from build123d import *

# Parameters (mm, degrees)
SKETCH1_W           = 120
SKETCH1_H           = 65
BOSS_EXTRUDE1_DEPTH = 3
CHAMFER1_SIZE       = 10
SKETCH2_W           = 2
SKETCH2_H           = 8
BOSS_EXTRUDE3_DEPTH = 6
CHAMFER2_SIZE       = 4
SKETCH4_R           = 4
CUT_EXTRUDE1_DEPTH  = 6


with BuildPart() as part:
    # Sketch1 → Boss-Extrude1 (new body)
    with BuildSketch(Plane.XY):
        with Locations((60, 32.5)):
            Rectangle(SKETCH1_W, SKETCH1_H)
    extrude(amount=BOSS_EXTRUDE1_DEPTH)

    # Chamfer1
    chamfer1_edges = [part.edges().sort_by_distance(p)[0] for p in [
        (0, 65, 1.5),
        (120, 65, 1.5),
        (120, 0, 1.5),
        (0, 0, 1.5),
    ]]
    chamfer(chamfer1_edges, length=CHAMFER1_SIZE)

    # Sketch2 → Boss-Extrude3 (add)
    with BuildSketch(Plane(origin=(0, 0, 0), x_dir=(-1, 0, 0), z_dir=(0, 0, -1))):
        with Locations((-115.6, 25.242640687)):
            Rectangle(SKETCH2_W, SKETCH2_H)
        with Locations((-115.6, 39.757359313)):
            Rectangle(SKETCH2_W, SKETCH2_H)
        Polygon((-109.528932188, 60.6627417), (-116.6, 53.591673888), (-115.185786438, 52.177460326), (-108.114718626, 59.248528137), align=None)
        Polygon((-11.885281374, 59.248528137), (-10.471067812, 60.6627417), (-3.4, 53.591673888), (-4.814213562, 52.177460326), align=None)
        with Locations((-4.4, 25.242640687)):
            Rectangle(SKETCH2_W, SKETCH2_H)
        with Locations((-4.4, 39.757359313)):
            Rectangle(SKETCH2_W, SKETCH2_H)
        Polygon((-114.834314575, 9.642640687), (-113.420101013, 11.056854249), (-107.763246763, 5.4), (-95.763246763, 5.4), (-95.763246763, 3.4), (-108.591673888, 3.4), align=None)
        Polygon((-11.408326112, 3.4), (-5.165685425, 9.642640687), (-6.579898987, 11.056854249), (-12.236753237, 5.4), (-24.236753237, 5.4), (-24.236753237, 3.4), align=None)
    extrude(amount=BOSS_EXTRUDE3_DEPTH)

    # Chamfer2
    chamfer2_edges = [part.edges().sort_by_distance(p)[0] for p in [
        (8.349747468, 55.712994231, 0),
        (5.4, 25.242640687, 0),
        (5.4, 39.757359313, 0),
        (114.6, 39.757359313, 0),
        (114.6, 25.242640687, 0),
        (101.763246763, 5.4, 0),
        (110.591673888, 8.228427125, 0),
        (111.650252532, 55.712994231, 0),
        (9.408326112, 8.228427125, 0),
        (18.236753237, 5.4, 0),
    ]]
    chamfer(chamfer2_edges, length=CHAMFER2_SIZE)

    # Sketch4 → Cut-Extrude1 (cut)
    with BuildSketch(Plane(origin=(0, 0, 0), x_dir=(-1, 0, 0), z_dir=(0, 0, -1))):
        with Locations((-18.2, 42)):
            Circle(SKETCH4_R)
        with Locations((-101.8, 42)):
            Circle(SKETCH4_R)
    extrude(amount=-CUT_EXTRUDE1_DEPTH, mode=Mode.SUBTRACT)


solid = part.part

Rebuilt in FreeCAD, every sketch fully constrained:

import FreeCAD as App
import Part
import Sketcher

V = App.Vector


def edges_at(feature, points):
    """Names of the edges that pass closest to the given points."""
    edges = feature.Shape.Edges
    near = lambda p: min(range(len(edges)), key=lambda i: edges[i].distToShape(Part.Vertex(*p))[0])
    return sorted({f"Edge{near(p) + 1}" for p in points})

doc = App.newDocument("Part")
body = doc.addObject("PartDesign::Body", "Body")

# Sketch on XY plane
sketch1 = body.newObject("Sketcher::SketchObject", "Sketch")
sketch1.AttachmentSupport = (doc.getObject("XY_Plane"), [""])
sketch1.MapMode = "FlatFace"
sketch1.addGeometry(Part.LineSegment(V(0, 65, 0), V(0, 0, 0)), False)
sketch1.addGeometry(Part.LineSegment(V(0, 0, 0), V(120, 0, 0)), False)
sketch1.addGeometry(Part.LineSegment(V(120, 0, 0), V(120, 65, 0)), False)
sketch1.addGeometry(Part.LineSegment(V(120, 65, 0), V(0, 65, 0)), False)
sketch1.addConstraint(Sketcher.Constraint("Coincident", 0, 2, 1, 1))
sketch1.addConstraint(Sketcher.Constraint("Coincident", 1, 2, 2, 1))
sketch1.addConstraint(Sketcher.Constraint("Coincident", 2, 2, 3, 1))
sketch1.addConstraint(Sketcher.Constraint("Coincident", 3, 2, 0, 1))
sketch1.addConstraint(Sketcher.Constraint("Vertical", 0))
sketch1.addConstraint(Sketcher.Constraint("Horizontal", 1))
sketch1.addConstraint(Sketcher.Constraint("Vertical", 2))
sketch1.addConstraint(Sketcher.Constraint("Horizontal", 3))
sketch1.addConstraint(Sketcher.Constraint("Coincident", 0, 2, -1, 1))
sketch1.addConstraint(Sketcher.Constraint("DistanceX", 1, 1, 1, 2, 120.0))
sketch1.addConstraint(Sketcher.Constraint("DistanceY", 0, 2, 0, 1, 65.0))
pad1 = body.newObject("PartDesign::Pad", "Pad")
pad1.Profile = sketch1
pad1.Length = 3
doc.recompute()

chamfer = body.newObject("PartDesign::Chamfer", "Chamfer")
chamfer.Base = (pad1, edges_at(pad1, [
    (0, 65, 1.5),
    (120, 65, 1.5),
    (120, 0, 1.5),
    (0, 0, 1.5),
]))
chamfer.Size = 10

# Sketch on XY plane
sketch2 = body.newObject("Sketcher::SketchObject", "Sketch001")
sketch2.AttachmentSupport = (doc.getObject("XY_Plane"), [""])
sketch2.MapMode = "FlatFace"
sketch2.addGeometry(Part.LineSegment(V(116.6, 29.242641, 0), V(116.6, 21.242641, 0)), False)
sketch2.addGeometry(Part.LineSegment(V(116.6, 21.242641, 0), V(114.6, 21.242641, 0)), False)
sketch2.addGeometry(Part.LineSegment(V(114.6, 21.242641, 0), V(114.6, 29.242641, 0)), False)
sketch2.addGeometry(Part.LineSegment(V(114.6, 29.242641, 0), V(116.6, 29.242641, 0)), False)
sketch2.addGeometry(Part.LineSegment(V(116.6, 43.757359, 0), V(116.6, 35.757359, 0)), False)
sketch2.addGeometry(Part.LineSegment(V(116.6, 35.757359, 0), V(114.6, 35.757359, 0)), False)
sketch2.addGeometry(Part.LineSegment(V(114.6, 35.757359, 0), V(114.6, 43.757359, 0)), False)
sketch2.addGeometry(Part.LineSegment(V(114.6, 43.757359, 0), V(116.6, 43.757359, 0)), False)
sketch2.addGeometry(Part.LineSegment(V(109.528932, 60.662742, 0), V(116.6, 53.591674, 0)), False)
sketch2.addGeometry(Part.LineSegment(V(116.6, 53.591674, 0), V(115.185786, 52.17746, 0)), False)
sketch2.addGeometry(Part.LineSegment(V(115.185786, 52.17746, 0), V(108.114719, 59.248528, 0)), False)
sketch2.addGeometry(Part.LineSegment(V(108.114719, 59.248528, 0), V(109.528932, 60.662742, 0)), False)
sketch2.addGeometry(Part.LineSegment(V(10.471068, 60.662742, 0), V(11.885281, 59.248528, 0)), False)
sketch2.addGeometry(Part.LineSegment(V(11.885281, 59.248528, 0), V(4.814214, 52.17746, 0)), False)
sketch2.addGeometry(Part.LineSegment(V(4.814214, 52.17746, 0), V(3.4, 53.591674, 0)), False)
sketch2.addGeometry(Part.LineSegment(V(3.4, 53.591674, 0), V(10.471068, 60.662742, 0)), False)
sketch2.addGeometry(Part.LineSegment(V(5.4, 29.242641, 0), V(5.4, 21.242641, 0)), False)
sketch2.addGeometry(Part.LineSegment(V(5.4, 21.242641, 0), V(3.4, 21.242641, 0)), False)
sketch2.addGeometry(Part.LineSegment(V(3.4, 21.242641, 0), V(3.4, 29.242641, 0)), False)
sketch2.addGeometry(Part.LineSegment(V(3.4, 29.242641, 0), V(5.4, 29.242641, 0)), False)
sketch2.addGeometry(Part.LineSegment(V(5.4, 43.757359, 0), V(5.4, 35.757359, 0)), False)
sketch2.addGeometry(Part.LineSegment(V(5.4, 35.757359, 0), V(3.4, 35.757359, 0)), False)
sketch2.addGeometry(Part.LineSegment(V(3.4, 35.757359, 0), V(3.4, 43.757359, 0)), False)
sketch2.addGeometry(Part.LineSegment(V(3.4, 43.757359, 0), V(5.4, 43.757359, 0)), False)
sketch2.addGeometry(Part.LineSegment(V(113.420101, 11.056854, 0), V(114.834315, 9.642641, 0)), False)
sketch2.addGeometry(Part.LineSegment(V(114.834315, 9.642641, 0), V(108.591674, 3.4, 0)), False)
sketch2.addGeometry(Part.LineSegment(V(108.591674, 3.4, 0), V(95.763247, 3.4, 0)), False)
sketch2.addGeometry(Part.LineSegment(V(95.763247, 3.4, 0), V(95.763247, 5.4, 0)), False)
sketch2.addGeometry(Part.LineSegment(V(95.763247, 5.4, 0), V(107.763247, 5.4, 0)), False)
sketch2.addGeometry(Part.LineSegment(V(107.763247, 5.4, 0), V(113.420101, 11.056854, 0)), False)
sketch2.addGeometry(Part.LineSegment(V(11.408326, 3.4, 0), V(5.165685, 9.642641, 0)), False)
sketch2.addGeometry(Part.LineSegment(V(5.165685, 9.642641, 0), V(6.579899, 11.056854, 0)), False)
sketch2.addGeometry(Part.LineSegment(V(6.579899, 11.056854, 0), V(12.236753, 5.4, 0)), False)
sketch2.addGeometry(Part.LineSegment(V(12.236753, 5.4, 0), V(24.236753, 5.4, 0)), False)
sketch2.addGeometry(Part.LineSegment(V(24.236753, 5.4, 0), V(24.236753, 3.4, 0)), False)
sketch2.addGeometry(Part.LineSegment(V(24.236753, 3.4, 0), V(11.408326, 3.4, 0)), False)
sketch2.addConstraint(Sketcher.Constraint("Coincident", 0, 2, 1, 1))
sketch2.addConstraint(Sketcher.Constraint("Coincident", 1, 2, 2, 1))
sketch2.addConstraint(Sketcher.Constraint("Coincident", 2, 2, 3, 1))
sketch2.addConstraint(Sketcher.Constraint("Coincident", 3, 2, 0, 1))
sketch2.addConstraint(Sketcher.Constraint("Coincident", 4, 2, 5, 1))
sketch2.addConstraint(Sketcher.Constraint("Coincident", 5, 2, 6, 1))
sketch2.addConstraint(Sketcher.Constraint("Coincident", 6, 2, 7, 1))
sketch2.addConstraint(Sketcher.Constraint("Coincident", 7, 2, 4, 1))
sketch2.addConstraint(Sketcher.Constraint("Coincident", 8, 2, 9, 1))
sketch2.addConstraint(Sketcher.Constraint("Coincident", 9, 2, 10, 1))
sketch2.addConstraint(Sketcher.Constraint("Coincident", 10, 2, 11, 1))
sketch2.addConstraint(Sketcher.Constraint("Coincident", 11, 2, 8, 1))
sketch2.addConstraint(Sketcher.Constraint("Coincident", 12, 2, 13, 1))
sketch2.addConstraint(Sketcher.Constraint("Coincident", 13, 2, 14, 1))
sketch2.addConstraint(Sketcher.Constraint("Coincident", 14, 2, 15, 1))
sketch2.addConstraint(Sketcher.Constraint("Coincident", 15, 2, 12, 1))
sketch2.addConstraint(Sketcher.Constraint("Coincident", 16, 2, 17, 1))
sketch2.addConstraint(Sketcher.Constraint("Coincident", 17, 2, 18, 1))
sketch2.addConstraint(Sketcher.Constraint("Coincident", 18, 2, 19, 1))
sketch2.addConstraint(Sketcher.Constraint("Coincident", 19, 2, 16, 1))
sketch2.addConstraint(Sketcher.Constraint("Coincident", 20, 2, 21, 1))
sketch2.addConstraint(Sketcher.Constraint("Coincident", 21, 2, 22, 1))
sketch2.addConstraint(Sketcher.Constraint("Coincident", 22, 2, 23, 1))
sketch2.addConstraint(Sketcher.Constraint("Coincident", 23, 2, 20, 1))
sketch2.addConstraint(Sketcher.Constraint("Coincident", 24, 2, 25, 1))
sketch2.addConstraint(Sketcher.Constraint("Coincident", 25, 2, 26, 1))
sketch2.addConstraint(Sketcher.Constraint("Coincident", 26, 2, 27, 1))
sketch2.addConstraint(Sketcher.Constraint("Coincident", 27, 2, 28, 1))
sketch2.addConstraint(Sketcher.Constraint("Coincident", 28, 2, 29, 1))
sketch2.addConstraint(Sketcher.Constraint("Coincident", 29, 2, 24, 1))
sketch2.addConstraint(Sketcher.Constraint("Coincident", 30, 2, 31, 1))
sketch2.addConstraint(Sketcher.Constraint("Coincident", 31, 2, 32, 1))
sketch2.addConstraint(Sketcher.Constraint("Coincident", 32, 2, 33, 1))
sketch2.addConstraint(Sketcher.Constraint("Coincident", 33, 2, 34, 1))
sketch2.addConstraint(Sketcher.Constraint("Coincident", 34, 2, 35, 1))
sketch2.addConstraint(Sketcher.Constraint("Coincident", 35, 2, 30, 1))
sketch2.addConstraint(Sketcher.Constraint("Vertical", 0))
sketch2.addConstraint(Sketcher.Constraint("Horizontal", 1))
sketch2.addConstraint(Sketcher.Constraint("Vertical", 2))
sketch2.addConstraint(Sketcher.Constraint("Horizontal", 3))
sketch2.addConstraint(Sketcher.Constraint("Vertical", 4))
sketch2.addConstraint(Sketcher.Constraint("Horizontal", 5))
sketch2.addConstraint(Sketcher.Constraint("Vertical", 6))
sketch2.addConstraint(Sketcher.Constraint("Horizontal", 7))
sketch2.addConstraint(Sketcher.Constraint("Vertical", 16))
sketch2.addConstraint(Sketcher.Constraint("Horizontal", 17))
sketch2.addConstraint(Sketcher.Constraint("Vertical", 18))
sketch2.addConstraint(Sketcher.Constraint("Horizontal", 19))
sketch2.addConstraint(Sketcher.Constraint("Vertical", 20))
sketch2.addConstraint(Sketcher.Constraint("Horizontal", 21))
sketch2.addConstraint(Sketcher.Constraint("Vertical", 22))
sketch2.addConstraint(Sketcher.Constraint("Horizontal", 23))
sketch2.addConstraint(Sketcher.Constraint("Horizontal", 26))
sketch2.addConstraint(Sketcher.Constraint("Vertical", 27))
sketch2.addConstraint(Sketcher.Constraint("Horizontal", 28))
sketch2.addConstraint(Sketcher.Constraint("Horizontal", 33))
sketch2.addConstraint(Sketcher.Constraint("Vertical", 34))
sketch2.addConstraint(Sketcher.Constraint("Horizontal", 35))
sketch2.addConstraint(Sketcher.Constraint("Perpendicular", 8, 9))
sketch2.addConstraint(Sketcher.Constraint("Perpendicular", 9, 10))
sketch2.addConstraint(Sketcher.Constraint("Perpendicular", 10, 11))
sketch2.addConstraint(Sketcher.Constraint("Perpendicular", 11, 12))
sketch2.addConstraint(Sketcher.Constraint("Perpendicular", 12, 13))
sketch2.addConstraint(Sketcher.Constraint("Perpendicular", 13, 14))
sketch2.addConstraint(Sketcher.Constraint("Perpendicular", 14, 15))
sketch2.addConstraint(Sketcher.Constraint("Perpendicular", 15, 24))
sketch2.addConstraint(Sketcher.Constraint("Perpendicular", 24, 25))
sketch2.addConstraint(Sketcher.Constraint("Parallel", 25, 29))
sketch2.addConstraint(Sketcher.Constraint("Perpendicular", 29, 30))
sketch2.addConstraint(Sketcher.Constraint("Perpendicular", 30, 31))
sketch2.addConstraint(Sketcher.Constraint("Perpendicular", 31, 32))
sketch2.addConstraint(Sketcher.Constraint("Horizontal", 10, 2, 12, 2))
sketch2.addConstraint(Sketcher.Constraint("Horizontal", 9, 2, 13, 2))
sketch2.addConstraint(Sketcher.Constraint("Horizontal", 8, 2, 14, 2))
sketch2.addConstraint(Sketcher.Constraint("Horizontal", 1, 2, 16, 2))
sketch2.addConstraint(Sketcher.Constraint("Horizontal", 3, 2, 18, 2))
sketch2.addConstraint(Sketcher.Constraint("Horizontal", 5, 2, 20, 2))
sketch2.addConstraint(Sketcher.Constraint("Horizontal", 7, 2, 22, 2))
sketch2.addConstraint(Sketcher.Constraint("Horizontal", 24, 2, 30, 2))
sketch2.addConstraint(Sketcher.Constraint("Horizontal", 29, 2, 31, 2))
sketch2.addConstraint(Sketcher.Constraint("Horizontal", 28, 2, 32, 2))
sketch2.addConstraint(Sketcher.Constraint("Horizontal", 26, 2, 34, 2))
sketch2.addConstraint(Sketcher.Constraint("Vertical", 3, 2, 4, 2))
sketch2.addConstraint(Sketcher.Constraint("Vertical", 2, 2, 5, 2))
sketch2.addConstraint(Sketcher.Constraint("Vertical", 7, 2, 8, 2))
sketch2.addConstraint(Sketcher.Constraint("Vertical", 14, 2, 17, 2))
sketch2.addConstraint(Sketcher.Constraint("Vertical", 19, 2, 20, 2))
sketch2.addConstraint(Sketcher.Constraint("Vertical", 18, 2, 21, 2))
sketch2.addConstraint(Sketcher.Constraint("Equal", 7, 17))
sketch2.addConstraint(Sketcher.Constraint("Equal", 28, 33))
sketch2.addConstraint(Sketcher.Constraint("Equal", 26, 35))
sketch2.addConstraint(Sketcher.Constraint("Equal", 2, 4))
sketch2.addConstraint(Sketcher.Constraint("Equal", 23, 27))
sketch2.addConstraint(Sketcher.Constraint("Equal", 14, 24))
sketch2.addConstraint(Sketcher.Constraint("DistanceX", 1, 2, 1, 1, 2.0))
sketch2.addConstraint(Sketcher.Constraint("DistanceX", 28, 1, 28, 2, 12.0))
sketch2.addConstraint(Sketcher.Constraint("DistanceY", 0, 2, 0, 1, 8.0))
sketch2.addConstraint(Sketcher.Constraint("Distance", 8, 10.0))
sketch2.addConstraint(Sketcher.Constraint("Distance", 9, 2.0))
sketch2.addConstraint(Sketcher.Constraint("Distance", 29, 8.0))
sketch2.addConstraint(Sketcher.Constraint("DistanceX", -1, 1, 0, 2, 116.6))
sketch2.addConstraint(Sketcher.Constraint("DistanceX", -1, 1, 14, 2, 3.4))
sketch2.addConstraint(Sketcher.Constraint("DistanceY", -1, 1, 25, 2, 3.4))
sketch2.addConstraint(Sketcher.Constraint("DistanceY", 24, 2, 1, 2, 11.6))
sketch2.addConstraint(Sketcher.Constraint("DistanceX", -1, 1, 29, 2, 113.420101))
sketch2.addConstraint(Sketcher.Constraint("DistanceX", -1, 1, 31, 2, 6.579899))
sketch2.addConstraint(Sketcher.Constraint("DistanceY", 6, 2, 9, 2, 8.420101))
sketch2.addConstraint(Sketcher.Constraint("DistanceY", 16, 2, 15, 2, 39.420101))
pad2 = body.newObject("PartDesign::Pad", "Pad001")
pad2.Profile = sketch2
pad2.Length = 6
pad2.Reversed = True
doc.recompute()

chamfer2 = body.newObject("PartDesign::Chamfer", "Chamfer001")
chamfer2.Base = (pad2, edges_at(pad2, [
    (8.35, 55.713, 0),
    (5.4, 25.243, 0),
    (5.4, 39.757, 0),
    (114.6, 39.757, 0),
    (114.6, 25.243, 0),
    (101.763, 5.4, 0),
    (110.592, 8.228, 0),
    (111.65, 55.713, 0),
    (9.408, 8.228, 0),
    (18.237, 5.4, 0),
]))
chamfer2.Size = 4

# Sketch on XY plane
sketch3 = body.newObject("Sketcher::SketchObject", "Sketch002")
sketch3.AttachmentSupport = (doc.getObject("XY_Plane"), [""])
sketch3.MapMode = "FlatFace"
sketch3.addGeometry(Part.Circle(V(18.2, 42, 0), V(0, 0, 1), 4), False)
sketch3.addGeometry(Part.Circle(V(101.8, 42, 0), V(0, 0, 1), 4), False)
sketch3.addConstraint(Sketcher.Constraint("Equal", 0, 1))
sketch3.addConstraint(Sketcher.Constraint("Horizontal", 0, 3, 1, 3))
sketch3.addConstraint(Sketcher.Constraint("Diameter", 0, 8.0))
sketch3.addConstraint(Sketcher.Constraint("DistanceY", -1, 1, 0, 3, 42.0))
sketch3.addConstraint(Sketcher.Constraint("DistanceX", -1, 1, 0, 3, 18.2))
sketch3.addConstraint(Sketcher.Constraint("DistanceX", -1, 1, 1, 3, 101.8))
pocket1 = body.newObject("PartDesign::Pocket", "Pocket")
pocket1.Profile = sketch3
pocket1.Length = 6
pocket1.Reversed = True

doc.recompute()
